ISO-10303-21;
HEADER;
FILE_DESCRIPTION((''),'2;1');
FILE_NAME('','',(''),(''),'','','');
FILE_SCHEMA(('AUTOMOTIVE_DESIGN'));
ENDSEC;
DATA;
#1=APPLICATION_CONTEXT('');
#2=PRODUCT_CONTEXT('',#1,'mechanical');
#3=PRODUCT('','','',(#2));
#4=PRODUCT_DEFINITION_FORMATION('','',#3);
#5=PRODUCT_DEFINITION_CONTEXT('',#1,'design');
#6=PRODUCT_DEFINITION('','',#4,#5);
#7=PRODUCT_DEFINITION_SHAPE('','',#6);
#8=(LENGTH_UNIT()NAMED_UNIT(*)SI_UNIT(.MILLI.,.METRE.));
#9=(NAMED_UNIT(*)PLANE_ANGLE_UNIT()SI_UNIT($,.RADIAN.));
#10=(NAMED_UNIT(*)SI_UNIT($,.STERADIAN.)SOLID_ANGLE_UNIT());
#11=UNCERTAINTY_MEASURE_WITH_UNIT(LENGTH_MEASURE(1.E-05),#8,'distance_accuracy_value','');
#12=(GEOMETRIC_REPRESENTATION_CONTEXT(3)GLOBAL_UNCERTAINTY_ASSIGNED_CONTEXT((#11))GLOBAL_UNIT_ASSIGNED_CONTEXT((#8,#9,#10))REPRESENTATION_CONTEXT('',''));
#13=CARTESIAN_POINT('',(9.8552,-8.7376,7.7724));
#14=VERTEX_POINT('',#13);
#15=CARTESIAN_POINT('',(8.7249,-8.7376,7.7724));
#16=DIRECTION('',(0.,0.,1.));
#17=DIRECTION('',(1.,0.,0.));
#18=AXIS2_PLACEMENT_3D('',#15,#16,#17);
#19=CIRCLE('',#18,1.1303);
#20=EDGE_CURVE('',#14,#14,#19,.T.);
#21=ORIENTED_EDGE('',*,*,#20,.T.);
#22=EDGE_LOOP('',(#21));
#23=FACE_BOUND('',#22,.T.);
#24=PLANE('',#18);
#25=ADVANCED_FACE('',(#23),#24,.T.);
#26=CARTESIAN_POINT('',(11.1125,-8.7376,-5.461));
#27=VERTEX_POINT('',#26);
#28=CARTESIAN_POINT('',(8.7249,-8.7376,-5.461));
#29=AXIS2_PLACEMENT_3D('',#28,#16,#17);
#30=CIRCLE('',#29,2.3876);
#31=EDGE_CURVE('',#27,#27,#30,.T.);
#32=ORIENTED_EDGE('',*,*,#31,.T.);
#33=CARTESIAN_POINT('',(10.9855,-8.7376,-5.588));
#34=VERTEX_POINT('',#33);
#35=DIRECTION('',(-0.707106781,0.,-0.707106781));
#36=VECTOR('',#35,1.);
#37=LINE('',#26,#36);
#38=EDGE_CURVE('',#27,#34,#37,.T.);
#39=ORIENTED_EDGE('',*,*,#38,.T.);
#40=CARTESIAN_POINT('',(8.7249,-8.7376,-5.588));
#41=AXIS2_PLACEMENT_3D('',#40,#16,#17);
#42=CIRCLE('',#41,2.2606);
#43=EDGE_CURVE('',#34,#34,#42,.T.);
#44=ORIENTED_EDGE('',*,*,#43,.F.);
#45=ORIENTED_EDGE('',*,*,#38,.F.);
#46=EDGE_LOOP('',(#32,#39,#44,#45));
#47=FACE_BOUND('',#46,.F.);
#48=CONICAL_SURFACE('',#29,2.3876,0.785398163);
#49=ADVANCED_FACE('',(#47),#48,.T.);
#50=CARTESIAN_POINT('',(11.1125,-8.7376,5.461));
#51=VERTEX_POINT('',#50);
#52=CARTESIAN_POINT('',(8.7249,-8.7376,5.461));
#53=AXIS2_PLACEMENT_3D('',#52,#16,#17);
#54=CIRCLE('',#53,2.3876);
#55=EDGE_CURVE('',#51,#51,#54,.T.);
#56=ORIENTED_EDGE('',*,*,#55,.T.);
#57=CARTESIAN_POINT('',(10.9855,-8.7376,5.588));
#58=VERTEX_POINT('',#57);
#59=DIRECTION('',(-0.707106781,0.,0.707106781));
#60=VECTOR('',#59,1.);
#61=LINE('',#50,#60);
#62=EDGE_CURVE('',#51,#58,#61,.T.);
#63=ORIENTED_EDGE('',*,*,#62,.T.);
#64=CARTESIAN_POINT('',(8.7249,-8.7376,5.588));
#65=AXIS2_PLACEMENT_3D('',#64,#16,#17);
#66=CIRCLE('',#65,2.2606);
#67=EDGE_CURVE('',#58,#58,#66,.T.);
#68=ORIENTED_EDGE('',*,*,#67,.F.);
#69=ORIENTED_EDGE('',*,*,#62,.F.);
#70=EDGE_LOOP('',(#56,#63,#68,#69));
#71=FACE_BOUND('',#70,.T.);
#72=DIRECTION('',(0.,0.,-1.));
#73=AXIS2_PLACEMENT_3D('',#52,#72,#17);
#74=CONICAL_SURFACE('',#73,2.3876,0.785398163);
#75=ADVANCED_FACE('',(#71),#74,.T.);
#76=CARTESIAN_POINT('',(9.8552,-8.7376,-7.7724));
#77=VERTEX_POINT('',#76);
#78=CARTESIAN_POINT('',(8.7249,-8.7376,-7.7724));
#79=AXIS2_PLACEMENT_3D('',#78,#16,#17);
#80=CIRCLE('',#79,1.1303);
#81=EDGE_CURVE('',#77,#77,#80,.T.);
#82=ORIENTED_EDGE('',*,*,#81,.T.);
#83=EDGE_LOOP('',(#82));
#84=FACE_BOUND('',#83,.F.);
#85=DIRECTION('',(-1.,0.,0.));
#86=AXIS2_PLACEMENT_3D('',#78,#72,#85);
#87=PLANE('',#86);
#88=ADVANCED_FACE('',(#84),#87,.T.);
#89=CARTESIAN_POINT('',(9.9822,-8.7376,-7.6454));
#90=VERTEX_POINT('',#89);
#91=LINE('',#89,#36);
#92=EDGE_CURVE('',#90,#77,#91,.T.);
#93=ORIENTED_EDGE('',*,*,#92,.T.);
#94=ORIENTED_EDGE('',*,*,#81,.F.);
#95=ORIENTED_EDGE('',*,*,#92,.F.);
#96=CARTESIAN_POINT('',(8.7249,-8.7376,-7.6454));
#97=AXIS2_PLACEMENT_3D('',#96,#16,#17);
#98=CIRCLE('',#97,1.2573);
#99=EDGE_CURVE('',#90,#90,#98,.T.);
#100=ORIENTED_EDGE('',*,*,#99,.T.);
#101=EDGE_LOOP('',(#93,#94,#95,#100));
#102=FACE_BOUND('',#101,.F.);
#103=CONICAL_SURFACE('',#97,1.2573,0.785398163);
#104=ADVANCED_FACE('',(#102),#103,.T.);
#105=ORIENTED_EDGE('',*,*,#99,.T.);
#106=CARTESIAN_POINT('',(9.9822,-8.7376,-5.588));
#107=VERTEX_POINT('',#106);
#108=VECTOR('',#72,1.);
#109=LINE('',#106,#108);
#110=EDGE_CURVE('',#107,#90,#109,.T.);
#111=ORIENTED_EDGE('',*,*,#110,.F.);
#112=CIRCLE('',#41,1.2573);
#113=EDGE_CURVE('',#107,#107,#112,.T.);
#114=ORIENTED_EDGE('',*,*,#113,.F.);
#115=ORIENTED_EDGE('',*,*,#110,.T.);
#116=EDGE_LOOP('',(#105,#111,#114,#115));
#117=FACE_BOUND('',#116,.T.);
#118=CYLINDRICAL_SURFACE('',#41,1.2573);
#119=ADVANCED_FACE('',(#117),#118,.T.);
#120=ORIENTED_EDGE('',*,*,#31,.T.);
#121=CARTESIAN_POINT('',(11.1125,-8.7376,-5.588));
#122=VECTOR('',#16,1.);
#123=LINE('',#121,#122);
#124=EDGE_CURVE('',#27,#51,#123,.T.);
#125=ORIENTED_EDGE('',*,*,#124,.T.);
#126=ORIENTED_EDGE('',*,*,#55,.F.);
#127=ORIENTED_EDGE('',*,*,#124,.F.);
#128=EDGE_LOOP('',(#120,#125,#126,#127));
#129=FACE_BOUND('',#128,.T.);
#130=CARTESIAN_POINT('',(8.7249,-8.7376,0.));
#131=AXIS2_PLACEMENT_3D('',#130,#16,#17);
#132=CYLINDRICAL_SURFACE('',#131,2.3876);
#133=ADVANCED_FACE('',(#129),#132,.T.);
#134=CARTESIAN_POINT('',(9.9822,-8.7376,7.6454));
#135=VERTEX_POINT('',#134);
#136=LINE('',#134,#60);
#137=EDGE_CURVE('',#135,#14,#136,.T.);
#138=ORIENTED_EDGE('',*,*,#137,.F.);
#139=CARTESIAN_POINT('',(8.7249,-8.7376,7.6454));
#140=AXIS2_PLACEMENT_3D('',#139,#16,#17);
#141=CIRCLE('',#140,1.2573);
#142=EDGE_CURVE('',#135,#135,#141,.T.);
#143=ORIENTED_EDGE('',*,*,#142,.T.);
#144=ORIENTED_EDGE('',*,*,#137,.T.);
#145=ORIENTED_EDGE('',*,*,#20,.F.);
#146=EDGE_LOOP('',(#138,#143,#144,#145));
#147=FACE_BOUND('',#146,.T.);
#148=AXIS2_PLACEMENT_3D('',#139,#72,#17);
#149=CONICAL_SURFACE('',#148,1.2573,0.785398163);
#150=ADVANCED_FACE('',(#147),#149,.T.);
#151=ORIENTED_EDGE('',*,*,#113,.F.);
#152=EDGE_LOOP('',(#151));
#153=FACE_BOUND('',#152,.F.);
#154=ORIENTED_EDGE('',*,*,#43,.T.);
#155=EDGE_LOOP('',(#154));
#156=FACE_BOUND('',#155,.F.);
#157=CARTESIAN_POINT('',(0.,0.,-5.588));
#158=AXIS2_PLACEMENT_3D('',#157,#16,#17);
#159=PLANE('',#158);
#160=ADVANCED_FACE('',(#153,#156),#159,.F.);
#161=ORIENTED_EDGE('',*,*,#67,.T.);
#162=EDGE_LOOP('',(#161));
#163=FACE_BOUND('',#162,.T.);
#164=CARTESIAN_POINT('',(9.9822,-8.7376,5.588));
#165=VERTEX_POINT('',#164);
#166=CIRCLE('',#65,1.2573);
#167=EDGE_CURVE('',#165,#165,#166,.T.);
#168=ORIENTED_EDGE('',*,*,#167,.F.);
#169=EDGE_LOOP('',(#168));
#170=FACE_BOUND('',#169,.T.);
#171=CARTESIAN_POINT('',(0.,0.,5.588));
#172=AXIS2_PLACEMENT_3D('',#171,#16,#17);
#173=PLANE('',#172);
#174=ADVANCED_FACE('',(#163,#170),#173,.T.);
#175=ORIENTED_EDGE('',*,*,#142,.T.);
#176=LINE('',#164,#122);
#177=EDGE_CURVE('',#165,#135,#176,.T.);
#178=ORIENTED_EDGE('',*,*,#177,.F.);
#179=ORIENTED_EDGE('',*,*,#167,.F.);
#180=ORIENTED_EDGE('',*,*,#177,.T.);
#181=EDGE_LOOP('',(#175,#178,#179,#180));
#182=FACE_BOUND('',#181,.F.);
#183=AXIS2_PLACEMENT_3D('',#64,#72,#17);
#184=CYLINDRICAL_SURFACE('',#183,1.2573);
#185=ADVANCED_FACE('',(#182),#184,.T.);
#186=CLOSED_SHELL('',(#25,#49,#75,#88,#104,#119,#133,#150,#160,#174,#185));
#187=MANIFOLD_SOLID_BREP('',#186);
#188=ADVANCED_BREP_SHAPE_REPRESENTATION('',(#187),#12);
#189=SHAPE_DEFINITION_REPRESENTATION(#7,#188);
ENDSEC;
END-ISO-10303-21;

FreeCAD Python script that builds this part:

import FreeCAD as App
import Part
import Sketcher
Q = App.Units.Quantity


def edges_at(feature, points):
    """Names of the edges that pass closest to the given points."""
    edges = feature.Shape.Edges
    near = lambda p: min(range(len(edges)), key=lambda i: edges[i].distToShape(Part.Vertex(*p))[0])
    return sorted({f"Edge{near(p) + 1}" for p in points})

doc = App.newDocument("Part")
body = doc.addObject("PartDesign::Body", "Body")

# Sketch on XY plane
sketch1 = doc.addObject("Sketcher::SketchObject", "Sketch")
body.addObject(sketch1)
sketch1.AttachmentSupport = (doc.XY_Plane, [""])
sketch1.MapMode = "FlatFace"
sketch1.addGeometry(Part.Circle(App.Vector(8.7249, -8.7376, 0), App.Vector(0, 0, 1), 2.3876), False)
sketch1.addConstraint(Sketcher.Constraint("Diameter", 0, Q("0.188 in")))
sketch1.addConstraint(Sketcher.Constraint("DistanceY", 0, 3, -1, 1, Q("0.344 in")))
sketch1.addConstraint(Sketcher.Constraint("DistanceX", -1, 1, 0, 3, Q("0.3435 in")))
pad1 = doc.addObject("PartDesign::Pad", "Pad")
body.addObject(pad1)
pad1.Profile = sketch1
pad1.Length = Q("0.44 in")
pad1.Midplane = True

# Sketch on XY plane
sketch2 = doc.addObject("Sketcher::SketchObject", "Sketch001")
body.addObject(sketch2)
sketch2.AttachmentSupport = (doc.XY_Plane, [""])
sketch2.MapMode = "FlatFace"
sketch2.AttachmentOffset = App.Placement(App.Vector(0, 0, 0.22 * 25.4), App.Rotation())
sketch2.addGeometry(Part.Circle(App.Vector(8.7249, -8.7376, 0), App.Vector(0, 0, 1), 1.2573), False)
sketch2.addConstraint(Sketcher.Constraint("Diameter", 0, Q("0.099 in")))
sketch2.addConstraint(Sketcher.Constraint("DistanceY", 0, 3, -1, 1, Q("0.344 in")))
sketch2.addConstraint(Sketcher.Constraint("DistanceX", -1, 1, 0, 3, Q("0.3435 in")))
pad2 = doc.addObject("PartDesign::Pad", "Pad001")
body.addObject(pad2)
pad2.Profile = sketch2
pad2.Length = Q("0.086 in")
doc.recompute()

mirrored = doc.addObject("PartDesign::Mirrored", "Mirrored")
body.addObject(mirrored)
mirrored.Originals = [pad2]
mirrored.MirrorPlane = (doc.XY_Plane, [""])
body.Tip = mirrored
doc.recompute()

chamfer = doc.addObject("PartDesign::Chamfer", "Chamfer")
body.addObject(chamfer)
chamfer.Base = (mirrored, edges_at(mirrored, [
    (7.468, -8.738, 7.772),
    (6.337, -8.738, 5.588),
    (6.337, -8.738, -5.588),
    (7.468, -8.738, -7.772),
]))
chamfer.Size = Q("0.005 in")

doc.recompute()
